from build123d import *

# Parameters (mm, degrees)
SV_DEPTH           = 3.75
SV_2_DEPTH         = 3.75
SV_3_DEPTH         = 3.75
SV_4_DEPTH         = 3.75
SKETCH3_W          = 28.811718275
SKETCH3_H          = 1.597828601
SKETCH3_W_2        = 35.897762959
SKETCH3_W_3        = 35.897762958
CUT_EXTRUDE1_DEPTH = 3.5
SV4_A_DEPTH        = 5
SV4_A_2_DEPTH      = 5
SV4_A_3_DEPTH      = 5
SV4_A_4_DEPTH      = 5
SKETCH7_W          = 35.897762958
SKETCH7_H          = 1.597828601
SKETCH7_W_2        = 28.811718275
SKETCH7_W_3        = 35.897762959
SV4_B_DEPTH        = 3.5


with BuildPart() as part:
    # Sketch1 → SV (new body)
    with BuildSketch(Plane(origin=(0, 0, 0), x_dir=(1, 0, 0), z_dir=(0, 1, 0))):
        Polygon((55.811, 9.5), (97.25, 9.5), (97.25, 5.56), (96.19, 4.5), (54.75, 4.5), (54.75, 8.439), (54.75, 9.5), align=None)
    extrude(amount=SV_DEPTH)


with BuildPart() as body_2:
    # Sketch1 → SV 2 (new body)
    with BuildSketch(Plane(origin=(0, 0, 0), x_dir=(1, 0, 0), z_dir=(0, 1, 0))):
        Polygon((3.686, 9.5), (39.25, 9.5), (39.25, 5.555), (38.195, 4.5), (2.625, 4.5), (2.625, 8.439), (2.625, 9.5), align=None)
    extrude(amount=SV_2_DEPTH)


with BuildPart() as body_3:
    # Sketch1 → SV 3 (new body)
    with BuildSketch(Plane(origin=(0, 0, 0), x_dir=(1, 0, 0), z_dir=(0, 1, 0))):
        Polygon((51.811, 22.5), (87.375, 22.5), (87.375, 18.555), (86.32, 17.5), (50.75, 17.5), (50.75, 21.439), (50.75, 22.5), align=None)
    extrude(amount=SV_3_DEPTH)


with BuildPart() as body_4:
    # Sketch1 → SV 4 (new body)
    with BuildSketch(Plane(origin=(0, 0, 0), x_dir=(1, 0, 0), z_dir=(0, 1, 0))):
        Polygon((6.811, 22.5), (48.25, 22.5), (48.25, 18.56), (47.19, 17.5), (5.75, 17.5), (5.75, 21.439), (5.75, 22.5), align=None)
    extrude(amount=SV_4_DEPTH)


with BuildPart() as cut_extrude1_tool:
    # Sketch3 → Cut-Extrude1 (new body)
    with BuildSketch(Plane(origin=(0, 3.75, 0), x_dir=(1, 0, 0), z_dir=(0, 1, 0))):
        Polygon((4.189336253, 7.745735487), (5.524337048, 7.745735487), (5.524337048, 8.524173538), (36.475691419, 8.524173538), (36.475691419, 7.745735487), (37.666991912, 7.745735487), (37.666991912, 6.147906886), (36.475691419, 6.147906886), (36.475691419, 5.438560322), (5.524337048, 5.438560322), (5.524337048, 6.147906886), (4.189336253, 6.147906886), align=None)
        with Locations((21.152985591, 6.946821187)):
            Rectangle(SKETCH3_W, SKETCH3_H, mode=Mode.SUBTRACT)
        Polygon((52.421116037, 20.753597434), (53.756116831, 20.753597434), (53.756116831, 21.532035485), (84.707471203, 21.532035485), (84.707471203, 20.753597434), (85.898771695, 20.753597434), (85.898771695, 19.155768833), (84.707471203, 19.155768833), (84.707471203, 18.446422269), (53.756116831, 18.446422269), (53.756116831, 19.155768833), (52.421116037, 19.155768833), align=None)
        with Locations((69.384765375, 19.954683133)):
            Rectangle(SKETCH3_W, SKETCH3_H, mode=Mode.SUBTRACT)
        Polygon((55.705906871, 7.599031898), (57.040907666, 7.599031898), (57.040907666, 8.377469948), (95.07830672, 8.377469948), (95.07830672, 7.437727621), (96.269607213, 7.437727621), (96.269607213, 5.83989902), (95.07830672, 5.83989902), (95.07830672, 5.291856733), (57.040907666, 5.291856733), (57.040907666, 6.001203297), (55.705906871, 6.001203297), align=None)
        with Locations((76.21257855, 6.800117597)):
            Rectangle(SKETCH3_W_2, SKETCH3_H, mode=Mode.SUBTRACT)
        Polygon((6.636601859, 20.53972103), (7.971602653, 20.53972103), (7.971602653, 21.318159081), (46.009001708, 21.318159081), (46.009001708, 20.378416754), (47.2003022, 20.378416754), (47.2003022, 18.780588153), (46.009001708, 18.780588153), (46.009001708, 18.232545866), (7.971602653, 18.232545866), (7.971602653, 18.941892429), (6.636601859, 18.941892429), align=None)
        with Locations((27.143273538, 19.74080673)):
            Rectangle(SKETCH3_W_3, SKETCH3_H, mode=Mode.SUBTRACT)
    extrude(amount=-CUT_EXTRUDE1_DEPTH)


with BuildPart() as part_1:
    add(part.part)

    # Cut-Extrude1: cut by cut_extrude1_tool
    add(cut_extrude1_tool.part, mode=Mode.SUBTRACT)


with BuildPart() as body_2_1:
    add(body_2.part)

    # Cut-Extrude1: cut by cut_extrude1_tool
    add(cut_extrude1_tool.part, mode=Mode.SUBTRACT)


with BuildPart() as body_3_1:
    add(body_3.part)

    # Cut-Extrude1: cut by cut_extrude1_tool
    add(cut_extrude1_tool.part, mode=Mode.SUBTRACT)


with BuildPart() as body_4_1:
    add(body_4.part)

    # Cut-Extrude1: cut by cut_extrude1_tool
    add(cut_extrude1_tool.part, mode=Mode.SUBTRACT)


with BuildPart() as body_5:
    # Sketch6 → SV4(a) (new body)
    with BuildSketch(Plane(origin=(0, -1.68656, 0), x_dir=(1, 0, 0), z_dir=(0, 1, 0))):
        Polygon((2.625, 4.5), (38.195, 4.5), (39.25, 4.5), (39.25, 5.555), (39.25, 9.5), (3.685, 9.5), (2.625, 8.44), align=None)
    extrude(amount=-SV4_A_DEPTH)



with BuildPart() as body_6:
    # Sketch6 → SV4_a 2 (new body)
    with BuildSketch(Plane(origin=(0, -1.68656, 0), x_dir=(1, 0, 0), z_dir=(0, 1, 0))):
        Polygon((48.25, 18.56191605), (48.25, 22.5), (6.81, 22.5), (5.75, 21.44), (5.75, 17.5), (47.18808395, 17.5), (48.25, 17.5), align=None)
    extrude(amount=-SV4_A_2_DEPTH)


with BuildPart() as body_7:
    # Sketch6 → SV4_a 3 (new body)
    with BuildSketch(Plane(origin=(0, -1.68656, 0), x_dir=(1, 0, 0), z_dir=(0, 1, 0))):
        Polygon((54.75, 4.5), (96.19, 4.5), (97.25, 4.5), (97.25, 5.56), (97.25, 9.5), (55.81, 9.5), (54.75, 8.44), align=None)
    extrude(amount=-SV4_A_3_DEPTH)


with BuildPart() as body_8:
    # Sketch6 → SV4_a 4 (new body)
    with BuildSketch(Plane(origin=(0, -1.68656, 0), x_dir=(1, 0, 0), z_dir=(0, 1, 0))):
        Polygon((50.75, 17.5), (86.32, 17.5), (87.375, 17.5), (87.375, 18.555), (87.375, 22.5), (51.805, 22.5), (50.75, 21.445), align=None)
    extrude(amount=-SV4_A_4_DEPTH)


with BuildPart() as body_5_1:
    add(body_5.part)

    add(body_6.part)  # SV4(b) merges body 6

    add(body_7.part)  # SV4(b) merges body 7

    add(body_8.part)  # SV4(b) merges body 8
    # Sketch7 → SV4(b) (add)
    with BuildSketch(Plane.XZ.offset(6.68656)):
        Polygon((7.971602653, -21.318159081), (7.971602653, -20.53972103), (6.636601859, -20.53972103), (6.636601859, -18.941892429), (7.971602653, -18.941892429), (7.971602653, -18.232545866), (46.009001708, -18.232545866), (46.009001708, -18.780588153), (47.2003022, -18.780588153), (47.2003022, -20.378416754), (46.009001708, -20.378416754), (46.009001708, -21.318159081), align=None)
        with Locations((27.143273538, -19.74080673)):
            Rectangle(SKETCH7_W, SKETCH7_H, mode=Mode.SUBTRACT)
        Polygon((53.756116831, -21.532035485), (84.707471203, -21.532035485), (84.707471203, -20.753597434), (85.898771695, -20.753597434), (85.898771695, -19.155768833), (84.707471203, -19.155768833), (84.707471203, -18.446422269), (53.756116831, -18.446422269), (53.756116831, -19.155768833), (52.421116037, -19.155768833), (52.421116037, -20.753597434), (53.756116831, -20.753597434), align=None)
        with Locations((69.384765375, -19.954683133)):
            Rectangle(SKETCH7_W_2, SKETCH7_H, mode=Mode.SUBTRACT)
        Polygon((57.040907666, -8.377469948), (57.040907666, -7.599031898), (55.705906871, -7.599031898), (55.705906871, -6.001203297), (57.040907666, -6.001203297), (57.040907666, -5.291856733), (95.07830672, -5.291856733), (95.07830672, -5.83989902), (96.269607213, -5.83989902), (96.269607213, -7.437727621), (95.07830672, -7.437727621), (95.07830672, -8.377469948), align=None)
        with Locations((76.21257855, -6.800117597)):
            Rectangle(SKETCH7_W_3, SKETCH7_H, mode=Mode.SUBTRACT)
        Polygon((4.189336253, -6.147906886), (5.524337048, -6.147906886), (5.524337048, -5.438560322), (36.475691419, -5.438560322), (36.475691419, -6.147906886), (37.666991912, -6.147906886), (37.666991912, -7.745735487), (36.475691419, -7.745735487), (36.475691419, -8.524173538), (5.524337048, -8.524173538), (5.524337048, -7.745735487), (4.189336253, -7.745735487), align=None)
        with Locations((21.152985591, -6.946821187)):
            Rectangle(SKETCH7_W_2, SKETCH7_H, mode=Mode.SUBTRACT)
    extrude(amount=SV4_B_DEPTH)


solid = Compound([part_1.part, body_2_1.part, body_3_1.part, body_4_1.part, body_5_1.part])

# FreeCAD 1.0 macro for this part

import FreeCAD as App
import Part
import Sketcher

V = App.Vector
Q = App.Units.Quantity

doc = App.newDocument("Part")
body = doc.addObject("PartDesign::Body", "Body")

sketch1 = body.newObject("Sketcher::SketchObject", "Sketch")
sketch1.AttachmentSupport = (doc.getObject("XZ_Plane"), [""])
sketch1.MapMode = "FlatFace"
sketch1.addGeometry([
    Part.LineSegment(V(97.25, -9.5, 0), V(54.75, -9.5, 0)),
    Part.LineSegment(V(54.75, -9.5, 0), V(54.75, -4.5, 0)),
    Part.LineSegment(V(54.75, -4.5, 0), V(96.19, -4.5, 0)),
    Part.LineSegment(V(96.19, -4.5, 0), V(97.25, -5.56, 0)),
    Part.LineSegment(V(97.25, -5.56, 0), V(97.25, -9.5, 0)),
], False)
sketch1.addConstraint([
    Sketcher.Constraint("Coincident", 0, 2, 1, 1),
    Sketcher.Constraint("Coincident", 1, 2, 2, 1),
    Sketcher.Constraint("Coincident", 2, 2, 3, 1),
    Sketcher.Constraint("Coincident", 3, 2, 4, 1),
    Sketcher.Constraint("Coincident", 4, 2, 0, 1),
    Sketcher.Constraint("Horizontal", 0),
    Sketcher.Constraint("Vertical", 1),
    Sketcher.Constraint("Horizontal", 2),
    Sketcher.Constraint("Vertical", 4),
    Sketcher.Constraint("DistanceY", 1, 1, 1, 2, Q("5 mm")),
    Sketcher.Constraint("Angle", 3, Q("-45 deg")),
    Sketcher.Constraint("DistanceX", 0, 2, 0, 1, Q("42.5 mm")),
    Sketcher.Constraint("DistanceX", 2, 1, 2, 2, Q("41.44 mm")),
    Sketcher.Constraint("DistanceY", 0, 2, -1, 1, Q("9.5 mm")),
    Sketcher.Constraint("DistanceX", -1, 1, 0, 2, Q("54.75 mm")),
])
pad1 = body.newObject("PartDesign::Pad", "Pad")
pad1.Profile = sketch1
pad1.Length = 3.75
pad1.Reversed = True
body2 = doc.addObject("PartDesign::Body", "Body001")

sketch2 = body2.newObject("Sketcher::SketchObject", "Sketch001")
sketch2.AttachmentSupport = (doc.getObject("XZ_Plane001"), [""])
sketch2.MapMode = "FlatFace"
sketch2.addGeometry([
    Part.LineSegment(V(39.25, -9.5, 0), V(2.625, -9.5, 0)),
    Part.LineSegment(V(2.625, -9.5, 0), V(2.625, -4.5, 0)),
    Part.LineSegment(V(2.625, -4.5, 0), V(38.195, -4.5, 0)),
    Part.LineSegment(V(38.195, -4.5, 0), V(39.25, -5.555, 0)),
    Part.LineSegment(V(39.25, -5.555, 0), V(39.25, -9.5, 0)),
], False)
sketch2.addConstraint([
    Sketcher.Constraint("Coincident", 0, 2, 1, 1),
    Sketcher.Constraint("Coincident", 1, 2, 2, 1),
    Sketcher.Constraint("Coincident", 2, 2, 3, 1),
    Sketcher.Constraint("Coincident", 3, 2, 4, 1),
    Sketcher.Constraint("Coincident", 4, 2, 0, 1),
    Sketcher.Constraint("Horizontal", 0),
    Sketcher.Constraint("Vertical", 1),
    Sketcher.Constraint("Horizontal", 2),
    Sketcher.Constraint("Vertical", 4),
    Sketcher.Constraint("DistanceY", 1, 1, 1, 2, Q("5 mm")),
    Sketcher.Constraint("Angle", 3, Q("-45 deg")),
    Sketcher.Constraint("DistanceX", 2, 1, 2, 2, Q("35.57 mm")),
    Sketcher.Constraint("DistanceY", 0, 2, -1, 1, Q("9.5 mm")),
    Sketcher.Constraint("DistanceX", 0, 2, 0, 1, Q("36.625 mm")),
    Sketcher.Constraint("DistanceX", -1, 1, 3, 2, Q("39.25 mm")),
])
pad2 = body2.newObject("PartDesign::Pad", "Pad001")
pad2.Profile = sketch2
pad2.Length = 3.75
pad2.Reversed = True
body3 = doc.addObject("PartDesign::Body", "Body002")

sketch3 = body3.newObject("Sketcher::SketchObject", "Sketch002")
sketch3.AttachmentSupport = (doc.getObject("XZ_Plane002"), [""])
sketch3.MapMode = "FlatFace"
sketch3.addGeometry([
    Part.LineSegment(V(87.375, -22.5, 0), V(50.75, -22.5, 0)),
    Part.LineSegment(V(50.75, -22.5, 0), V(50.75, -17.5, 0)),
    Part.LineSegment(V(50.75, -17.5, 0), V(86.32, -17.5, 0)),
    Part.LineSegment(V(86.32, -17.5, 0), V(87.375, -18.555, 0)),
    Part.LineSegment(V(87.375, -18.555, 0), V(87.375, -22.5, 0)),
], False)
sketch3.addConstraint([
    Sketcher.Constraint("Coincident", 0, 2, 1, 1),
    Sketcher.Constraint("Coincident", 1, 2, 2, 1),
    Sketcher.Constraint("Coincident", 2, 2, 3, 1),
    Sketcher.Constraint("Coincident", 3, 2, 4, 1),
    Sketcher.Constraint("Coincident", 4, 2, 0, 1),
    Sketcher.Constraint("Horizontal", 0),
    Sketcher.Constraint("Vertical", 1),
    Sketcher.Constraint("Horizontal", 2),
    Sketcher.Constraint("Vertical", 4),
    Sketcher.Constraint("DistanceY", 1, 1, 1, 2, Q("5 mm")),
    Sketcher.Constraint("Angle", 3, Q("-45 deg")),
    Sketcher.Constraint("DistanceX", 2, 1, 2, 2, Q("35.57 mm")),
    Sketcher.Constraint("DistanceY", 0, 2, -1, 1, Q("22.5 mm")),
    Sketcher.Constraint("DistanceX", 0, 2, 0, 1, Q("36.625 mm")),
    Sketcher.Constraint("DistanceX", -1, 1, 0, 2, Q("50.75 mm")),
])
pad3 = body3.newObject("PartDesign::Pad", "Pad002")
pad3.Profile = sketch3
pad3.Length = 3.75
pad3.Reversed = True
body4 = doc.addObject("PartDesign::Body", "Body003")

sketch4 = body4.newObject("Sketcher::SketchObject", "Sketch003")
sketch4.AttachmentSupport = (doc.getObject("XZ_Plane003"), [""])
sketch4.MapMode = "FlatFace"
sketch4.addGeometry([
    Part.LineSegment(V(48.25, -22.5, 0), V(5.75, -22.5, 0)),
    Part.LineSegment(V(5.75, -22.5, 0), V(5.75, -17.5, 0)),
    Part.LineSegment(V(5.75, -17.5, 0), V(47.19, -17.5, 0)),
    Part.LineSegment(V(47.19, -17.5, 0), V(48.25, -18.56, 0)),
    Part.LineSegment(V(48.25, -18.56, 0), V(48.25, -22.5, 0)),
], False)
sketch4.addConstraint([
    Sketcher.Constraint("Coincident", 0, 2, 1, 1),
    Sketcher.Constraint("Coincident", 1, 2, 2, 1),
    Sketcher.Constraint("Coincident", 2, 2, 3, 1),
    Sketcher.Constraint("Coincident", 3, 2, 4, 1),
    Sketcher.Constraint("Coincident", 4, 2, 0, 1),
    Sketcher.Constraint("Horizontal", 0),
    Sketcher.Constraint("Vertical", 1),
    Sketcher.Constraint("Horizontal", 2),
    Sketcher.Constraint("Vertical", 4),
    Sketcher.Constraint("DistanceY", 1, 1, 1, 2, Q("5 mm")),
    Sketcher.Constraint("Angle", 3, Q("-45 deg")),
    Sketcher.Constraint("DistanceX", 0, 2, 0, 1, Q("42.5 mm")),
    Sketcher.Constraint("DistanceX", 2, 1, 2, 2, Q("41.44 mm")),
    Sketcher.Constraint("DistanceY", 0, 2, -1, 1, Q("22.5 mm")),
    Sketcher.Constraint("DistanceX", -1, 1, 0, 2, Q("5.75 mm")),
])
pad4 = body4.newObject("PartDesign::Pad", "Pad003")
pad4.Profile = sketch4
pad4.Length = 3.75
pad4.Reversed = True
body5 = doc.addObject("PartDesign::Body", "Body004")
body5.AllowCompound = True

sketch5 = body5.newObject("Sketcher::SketchObject", "Sketch004")
sketch5.AttachmentSupport = (doc.getObject("XZ_Plane004"), [""])
sketch5.MapMode = "FlatFace"
sketch5.AttachmentOffset = App.Placement(V(0, 0, -3.75), App.Rotation())
sketch5.addGeometry([
    Part.LineSegment(V(5.524337, -7.745735, 0), V(4.189336, -7.745735, 0)),
    Part.LineSegment(V(4.189336, -7.745735, 0), V(4.189336, -6.147907, 0)),
    Part.LineSegment(V(4.189336, -6.147907, 0), V(5.524337, -6.147907, 0)),
    Part.LineSegment(V(5.524337, -6.147907, 0), V(5.524337, -5.43856, 0)),
    Part.LineSegment(V(5.524337, -5.43856, 0), V(36.475691, -5.43856, 0)),
    Part.LineSegment(V(36.475691, -5.43856, 0), V(36.475691, -6.147907, 0)),
    Part.LineSegment(V(36.475691, -6.147907, 0), V(37.666992, -6.147907, 0)),
    Part.LineSegment(V(37.666992, -6.147907, 0), V(37.666992, -7.745735, 0)),
    Part.LineSegment(V(37.666992, -7.745735, 0), V(36.475691, -7.745735, 0)),
    Part.LineSegment(V(36.475691, -7.745735, 0), V(36.475691, -8.524174, 0)),
    Part.LineSegment(V(36.475691, -8.524174, 0), V(5.524337, -8.524174, 0)),
    Part.LineSegment(V(5.524337, -8.524174, 0), V(5.524337, -7.745735, 0)),
    Part.LineSegment(V(6.747126, -6.147907, 0), V(6.747126, -7.745735, 0)),
    Part.LineSegment(V(6.747126, -7.745735, 0), V(35.558845, -7.745735, 0)),
    Part.LineSegment(V(35.558845, -7.745735, 0), V(35.558845, -6.147907, 0)),
    Part.LineSegment(V(35.558845, -6.147907, 0), V(6.747126, -6.147907, 0)),
    Part.LineSegment(V(53.756117, -20.753597, 0), V(52.421116, -20.753597, 0)),
    Part.LineSegment(V(52.421116, -20.753597, 0), V(52.421116, -19.155769, 0)),
    Part.LineSegment(V(52.421116, -19.155769, 0), V(53.756117, -19.155769, 0)),
    Part.LineSegment(V(53.756117, -19.155769, 0), V(53.756117, -18.446422, 0)),
    Part.LineSegment(V(53.756117, -18.446422, 0), V(84.707471, -18.446422, 0)),
    Part.LineSegment(V(84.707471, -18.446422, 0), V(84.707471, -19.155769, 0)),
    Part.LineSegment(V(84.707471, -19.155769, 0), V(85.898772, -19.155769, 0)),
    Part.LineSegment(V(85.898772, -19.155769, 0), V(85.898772, -20.753597, 0)),
    Part.LineSegment(V(85.898772, -20.753597, 0), V(84.707471, -20.753597, 0)),
    Part.LineSegment(V(84.707471, -20.753597, 0), V(84.707471, -21.532035, 0)),
    Part.LineSegment(V(84.707471, -21.532035, 0), V(53.756117, -21.532035, 0)),
    Part.LineSegment(V(53.756117, -21.532035, 0), V(53.756117, -20.753597, 0)),
    Part.LineSegment(V(54.978906, -19.155769, 0), V(54.978906, -20.753597, 0)),
    Part.LineSegment(V(54.978906, -20.753597, 0), V(83.790625, -20.753597, 0)),
    Part.LineSegment(V(83.790625, -20.753597, 0), V(83.790625, -19.155769, 0)),
    Part.LineSegment(V(83.790625, -19.155769, 0), V(54.978906, -19.155769, 0)),
    Part.LineSegment(V(57.040908, -7.599032, 0), V(55.705907, -7.599032, 0)),
    Part.LineSegment(V(55.705907, -7.599032, 0), V(55.705907, -6.001203, 0)),
    Part.LineSegment(V(55.705907, -6.001203, 0), V(57.040908, -6.001203, 0)),
    Part.LineSegment(V(57.040908, -6.001203, 0), V(57.040908, -5.291857, 0)),
    Part.LineSegment(V(57.040908, -5.291857, 0), V(95.078307, -5.291857, 0)),
    Part.LineSegment(V(95.078307, -5.291857, 0), V(95.078307, -5.839899, 0)),
    Part.LineSegment(V(95.078307, -5.839899, 0), V(96.269607, -5.839899, 0)),
    Part.LineSegment(V(96.269607, -5.839899, 0), V(96.269607, -7.437728, 0)),
    Part.LineSegment(V(96.269607, -7.437728, 0), V(95.078307, -7.437728, 0)),
    Part.LineSegment(V(95.078307, -7.437728, 0), V(95.078307, -8.37747, 0)),
    Part.LineSegment(V(95.078307, -8.37747, 0), V(57.040908, -8.37747, 0)),
    Part.LineSegment(V(57.040908, -8.37747, 0), V(57.040908, -7.599032, 0)),
    Part.LineSegment(V(58.263697, -6.001203, 0), V(58.263697, -7.599032, 0)),
    Part.LineSegment(V(58.263697, -7.599032, 0), V(94.16146, -7.599032, 0)),
    Part.LineSegment(V(94.16146, -7.599032, 0), V(94.16146, -6.001203, 0)),
    Part.LineSegment(V(94.16146, -6.001203, 0), V(58.263697, -6.001203, 0)),
    Part.LineSegment(V(7.971603, -20.539721, 0), V(6.636602, -20.539721, 0)),
    Part.LineSegment(V(6.636602, -20.539721, 0), V(6.636602, -18.941892, 0)),
    Part.LineSegment(V(6.636602, -18.941892, 0), V(7.971603, -18.941892, 0)),
    Part.LineSegment(V(7.971603, -18.941892, 0), V(7.971603, -18.232546, 0)),
    Part.LineSegment(V(7.971603, -18.232546, 0), V(46.009002, -18.232546, 0)),
    Part.LineSegment(V(46.009002, -18.232546, 0), V(46.009002, -18.780588, 0)),
    Part.LineSegment(V(46.009002, -18.780588, 0), V(47.200302, -18.780588, 0)),
    Part.LineSegment(V(47.200302, -18.780588, 0), V(47.200302, -20.378417, 0)),
    Part.LineSegment(V(47.200302, -20.378417, 0), V(46.009002, -20.378417, 0)),
    Part.LineSegment(V(46.009002, -20.378417, 0), V(46.009002, -21.318159, 0)),
    Part.LineSegment(V(46.009002, -21.318159, 0), V(7.971603, -21.318159, 0)),
    Part.LineSegment(V(7.971603, -21.318159, 0), V(7.971603, -20.539721, 0)),
    Part.LineSegment(V(9.194392, -18.941892, 0), V(9.194392, -20.539721, 0)),
    Part.LineSegment(V(9.194392, -20.539721, 0), V(45.092155, -20.539721, 0)),
    Part.LineSegment(V(45.092155, -20.539721, 0), V(45.092155, -18.941892, 0)),
    Part.LineSegment(V(45.092155, -18.941892, 0), V(9.194392, -18.941892, 0)),
], False)
sketch5.addConstraint([
    Sketcher.Constraint("Coincident", 0, 2, 1, 1),
    Sketcher.Constraint("Coincident", 1, 2, 2, 1),
    Sketcher.Constraint("Coincident", 2, 2, 3, 1),
    Sketcher.Constraint("Coincident", 3, 2, 4, 1),
    Sketcher.Constraint("Coincident", 4, 2, 5, 1),
    Sketcher.Constraint("Coincident", 5, 2, 6, 1),
    Sketcher.Constraint("Coincident", 6, 2, 7, 1),
    Sketcher.Constraint("Coincident", 7, 2, 8, 1),
    Sketcher.Constraint("Coincident", 8, 2, 9, 1),
    Sketcher.Constraint("Coincident", 9, 2, 10, 1),
    Sketcher.Constraint("Coincident", 10, 2, 11, 1),
    Sketcher.Constraint("Coincident", 11, 2, 0, 1),
    Sketcher.Constraint("Coincident", 12, 2, 13, 1),
    Sketcher.Constraint("Coincident", 13, 2, 14, 1),
    Sketcher.Constraint("Coincident", 14, 2, 15, 1),
    Sketcher.Constraint("Coincident", 15, 2, 12, 1),
    Sketcher.Constraint("Coincident", 16, 2, 17, 1),
    Sketcher.Constraint("Coincident", 17, 2, 18, 1),
    Sketcher.Constraint("Coincident", 18, 2, 19, 1),
    Sketcher.Constraint("Coincident", 19, 2, 20, 1),
    Sketcher.Constraint("Coincident", 20, 2, 21, 1),
    Sketcher.Constraint("Coincident", 21, 2, 22, 1),
    Sketcher.Constraint("Coincident", 22, 2, 23, 1),
    Sketcher.Constraint("Coincident", 23, 2, 24, 1),
    Sketcher.Constraint("Coincident", 24, 2, 25, 1),
    Sketcher.Constraint("Coincident", 25, 2, 26, 1),
    Sketcher.Constraint("Coincident", 26, 2, 27, 1),
    Sketcher.Constraint("Coincident", 27, 2, 16, 1),
    Sketcher.Constraint("Coincident", 28, 2, 29, 1),
    Sketcher.Constraint("Coincident", 29, 2, 30, 1),
    Sketcher.Constraint("Coincident", 30, 2, 31, 1),
    Sketcher.Constraint("Coincident", 31, 2, 28, 1),
    Sketcher.Constraint("Coincident", 32, 2, 33, 1),
    Sketcher.Constraint("Coincident", 33, 2, 34, 1),
    Sketcher.Constraint("Coincident", 34, 2, 35, 1),
    Sketcher.Constraint("Coincident", 35, 2, 36, 1),
    Sketcher.Constraint("Coincident", 36, 2, 37, 1),
    Sketcher.Constraint("Coincident", 37, 2, 38, 1),
    Sketcher.Constraint("Coincident", 38, 2, 39, 1),
    Sketcher.Constraint("Coincident", 39, 2, 40, 1),
    Sketcher.Constraint("Coincident", 40, 2, 41, 1),
    Sketcher.Constraint("Coincident", 41, 2, 42, 1),
    Sketcher.Constraint("Coincident", 42, 2, 43, 1),
    Sketcher.Constraint("Coincident", 43, 2, 32, 1),
    Sketcher.Constraint("Coincident", 44, 2, 45, 1),
    Sketcher.Constraint("Coincident", 45, 2, 46, 1),
    Sketcher.Constraint("Coincident", 46, 2, 47, 1),
    Sketcher.Constraint("Coincident", 47, 2, 44, 1),
    Sketcher.Constraint("Coincident", 48, 2, 49, 1),
    Sketcher.Constraint("Coincident", 49, 2, 50, 1),
    Sketcher.Constraint("Coincident", 50, 2, 51, 1),
    Sketcher.Constraint("Coincident", 51, 2, 52, 1),
    Sketcher.Constraint("Coincident", 52, 2, 53, 1),
    Sketcher.Constraint("Coincident", 53, 2, 54, 1),
    Sketcher.Constraint("Coincident", 54, 2, 55, 1),
    Sketcher.Constraint("Coincident", 55, 2, 56, 1),
    Sketcher.Constraint("Coincident", 56, 2, 57, 1),
    Sketcher.Constraint("Coincident", 57, 2, 58, 1),
    Sketcher.Constraint("Coincident", 58, 2, 59, 1),
    Sketcher.Constraint("Coincident", 59, 2, 48, 1),
    Sketcher.Constraint("Coincident", 60, 2, 61, 1),
    Sketcher.Constraint("Coincident", 61, 2, 62, 1),
    Sketcher.Constraint("Coincident", 62, 2, 63, 1),
    Sketcher.Constraint("Coincident", 63, 2, 60, 1),
    Sketcher.Constraint("Horizontal", 0),
    Sketcher.Constraint("Vertical", 1),
    Sketcher.Constraint("Horizontal", 2),
    Sketcher.Constraint("Vertical", 3),
    Sketcher.Constraint("Horizontal", 4),
    Sketcher.Constraint("Vertical", 5),
    Sketcher.Constraint("Horizontal", 6),
    Sketcher.Constraint("Vertical", 7),
    Sketcher.Constraint("Horizontal", 8),
    Sketcher.Constraint("Vertical", 9),
    Sketcher.Constraint("Horizontal", 10),
    Sketcher.Constraint("Vertical", 11),
    Sketcher.Constraint("Vertical", 12),
    Sketcher.Constraint("Horizontal", 13),
    Sketcher.Constraint("Vertical", 14),
    Sketcher.Constraint("Horizontal", 15),
    Sketcher.Constraint("Horizontal", 16),
    Sketcher.Constraint("Vertical", 17),
    Sketcher.Constraint("Horizontal", 18),
    Sketcher.Constraint("Vertical", 19),
    Sketcher.Constraint("Horizontal", 20),
    Sketcher.Constraint("Vertical", 21),
    Sketcher.Constraint("Horizontal", 22),
    Sketcher.Constraint("Vertical", 23),
    Sketcher.Constraint("Horizontal", 24),
    Sketcher.Constraint("Vertical", 25),
    Sketcher.Constraint("Horizontal", 26),
    Sketcher.Constraint("Vertical", 27),
    Sketcher.Constraint("Vertical", 28),
    Sketcher.Constraint("Horizontal", 29),
    Sketcher.Constraint("Vertical", 30),
    Sketcher.Constraint("Horizontal", 31),
    Sketcher.Constraint("Horizontal", 32),
    Sketcher.Constraint("Vertical", 33),
    Sketcher.Constraint("Horizontal", 34),
    Sketcher.Constraint("Vertical", 35),
    Sketcher.Constraint("Horizontal", 36),
    Sketcher.Constraint("Vertical", 37),
    Sketcher.Constraint("Horizontal", 38),
    Sketcher.Constraint("Vertical", 39),
    Sketcher.Constraint("Horizontal", 40),
    Sketcher.Constraint("Vertical", 41),
    Sketcher.Constraint("Horizontal", 42),
    Sketcher.Constraint("Vertical", 43),
    Sketcher.Constraint("Vertical", 44),
    Sketcher.Constraint("Horizontal", 45),
    Sketcher.Constraint("Vertical", 46),
    Sketcher.Constraint("Horizontal", 47),
    Sketcher.Constraint("Horizontal", 48),
    Sketcher.Constraint("Vertical", 49),
    Sketcher.Constraint("Horizontal", 50),
    Sketcher.Constraint("Vertical", 51),
    Sketcher.Constraint("Horizontal", 52),
    Sketcher.Constraint("Vertical", 53),
    Sketcher.Constraint("Horizontal", 54),
    Sketcher.Constraint("Vertical", 55),
    Sketcher.Constraint("Horizontal", 56),
    Sketcher.Constraint("Vertical", 57),
    Sketcher.Constraint("Horizontal", 58),
    Sketcher.Constraint("Vertical", 59),
    Sketcher.Constraint("Vertical", 60),
    Sketcher.Constraint("Horizontal", 61),
    Sketcher.Constraint("Vertical", 62),
    Sketcher.Constraint("Horizontal", 63),
    Sketcher.Constraint("Horizontal", 2, 2, 5, 2),
    Sketcher.Constraint("Horizontal", 0, 2, 7, 2),
    Sketcher.Constraint("Horizontal", 11, 2, 12, 2),
    Sketcher.Constraint("Horizontal", 6, 2, 14, 2),
    Sketcher.Constraint("Horizontal", 18, 2, 21, 2),
    Sketcher.Constraint("Horizontal", 16, 2, 23, 2),
    Sketcher.Constraint("Horizontal", 27, 2, 28, 2),
    Sketcher.Constraint("Horizontal", 22, 2, 30, 2),
    Sketcher.Constraint("Horizontal", 43, 2, 44, 2),
    Sketcher.Constraint("Horizontal", 34, 2, 46, 2),
    Sketcher.Constraint("Horizontal", 59, 2, 60, 2),
    Sketcher.Constraint("Horizontal", 50, 2, 62, 2),
    Sketcher.Constraint("Vertical", 5, 2, 8, 2),
    Sketcher.Constraint("Vertical", 3, 2, 10, 2),
    Sketcher.Constraint("Vertical", 21, 2, 24, 2),
    Sketcher.Constraint("Vertical", 19, 2, 26, 2),
    Sketcher.Constraint("Vertical", 37, 2, 40, 2),
    Sketcher.Constraint("Vertical", 35, 2, 42, 2),
    Sketcher.Constraint("Vertical", 53, 2, 56, 2),
    Sketcher.Constraint("Vertical", 51, 2, 58, 2),
    Sketcher.Constraint("Equal", 2, 16),
    Sketcher.Constraint("Equal", 10, 20),
    Sketcher.Constraint("Equal", 8, 22),
    Sketcher.Constraint("Equal", 15, 29),
    Sketcher.Constraint("Equal", 18, 32),
    Sketcher.Constraint("Equal", 24, 38),
    Sketcher.Constraint("Equal", 34, 48),
    Sketcher.Constraint("Equal", 42, 52),
    Sketcher.Constraint("Equal", 40, 54),
    Sketcher.Constraint("Equal", 47, 61),
    Sketcher.Constraint("Equal", 14, 17),
    Sketcher.Constraint("Equal", 5, 19),
    Sketcher.Constraint("Equal", 11, 25),
    Sketcher.Constraint("Equal", 30, 33),
    Sketcher.Constraint("Equal", 21, 35),
    Sketcher.Constraint("Equal", 33, 39),
    Sketcher.Constraint("Equal", 27, 43),
    Sketcher.Constraint("Equal", 46, 49),
    Sketcher.Constraint("Equal", 35, 51),
    Sketcher.Constraint("Equal", 37, 53),
    Sketcher.Constraint("Equal", 49, 55),
    Sketcher.Constraint("Equal", 41, 57),
    Sketcher.Constraint("DistanceX", 0, 2, 0, 1, Q("1.335001 mm")),
    Sketcher.Constraint("DistanceX", 6, 1, 6, 2, Q("1.1913 mm")),
    Sketcher.Constraint("DistanceX", 36, 1, 36, 2, Q("38.037399 mm")),
    Sketcher.Constraint("DistanceX", -1, 1, 52, 2, Q("46.009002 mm")),
    Sketcher.Constraint("DistanceX", 13, 1, 13, 2, Q("28.811718 mm")),
    Sketcher.Constraint("DistanceY", 1, 1, 1, 2, Q("1.597829 mm")),
    Sketcher.Constraint("DistanceY", 9, 2, 9, 1, Q("0.778438 mm")),
    Sketcher.Constraint("DistanceY", 37, 2, -1, 1, Q("5.839899 mm")),
    Sketcher.Constraint("DistanceX", 4, 1, 4, 2, Q("30.951354 mm")),
    Sketcher.Constraint("DistanceX", 45, 1, 45, 2, Q("35.897763 mm")),
    Sketcher.Constraint("DistanceY", 3, 1, 3, 2, Q("0.709347 mm")),
    Sketcher.Constraint("DistanceY", 37, 2, 37, 1, Q("0.548042 mm")),
    Sketcher.Constraint("DistanceY", 3, 2, -1, 1, Q("5.43856 mm")),
    Sketcher.Constraint("DistanceX", -1, 1, 4, 2, Q("36.475691 mm")),
    Sketcher.Constraint("DistanceY", 17, 2, -1, 1, Q("19.155769 mm")),
    Sketcher.Constraint("DistanceX", -1, 1, 20, 2, Q("84.707471 mm")),
    Sketcher.Constraint("DistanceX", -1, 1, 45, 2, Q("94.16146 mm")),
    Sketcher.Constraint("DistanceY", 48, 2, -1, 1, Q("20.539721 mm")),
    Sketcher.Constraint("DistanceX", -1, 1, 12, 2, Q("6.747126 mm")),
    Sketcher.Constraint("DistanceX", -1, 1, 28, 2, Q("54.978906 mm")),
    Sketcher.Constraint("DistanceX", -1, 1, 32, 2, Q("55.705907 mm")),
    Sketcher.Constraint("DistanceX", -1, 1, 60, 2, Q("9.194392 mm")),
])
pad5 = body5.newObject("PartDesign::Pad", "Pad004")
pad5.Profile = sketch5
pad5.Length = 3.5
doc.recompute()

body6 = doc.addObject("PartDesign::Body", "Body005")
body6.BaseFeature = body5
boolean = body.newObject("PartDesign::Boolean", "Boolean")
boolean.Type = "Cut"
boolean.addObjects([body6])
doc.recompute()

body7 = doc.addObject("PartDesign::Body", "Body006")
body7.BaseFeature = body5
boolean2 = body2.newObject("PartDesign::Boolean", "Boolean001")
boolean2.Type = "Cut"
boolean2.addObjects([body7])
doc.recompute()

body8 = doc.addObject("PartDesign::Body", "Body007")
body8.BaseFeature = body5
boolean3 = body3.newObject("PartDesign::Boolean", "Boolean002")
boolean3.Type = "Cut"
boolean3.addObjects([body8])
doc.recompute()

boolean4 = body4.newObject("PartDesign::Boolean", "Boolean003")
boolean4.Type = "Cut"
boolean4.addObjects([body5])
body9 = doc.addObject("PartDesign::Body", "Body008")

sketch6 = body9.newObject("Sketcher::SketchObject", "Sketch005")
sketch6.AttachmentSupport = (doc.getObject("XZ_Plane008"), [""])
sketch6.MapMode = "FlatFace"
sketch6.AttachmentOffset = App.Placement(V(0, 0, 1.68656), App.Rotation())
sketch6.addGeometry([
    Part.LineSegment(V(2.625, -4.5, 0), V(39.25, -4.5, 0)),
    Part.LineSegment(V(39.25, -4.5, 0), V(39.25, -9.5, 0)),
    Part.LineSegment(V(39.25, -9.5, 0), V(3.685, -9.5, 0)),
    Part.LineSegment(V(3.685, -9.5, 0), V(2.625, -8.44, 0)),
    Part.LineSegment(V(2.625, -8.44, 0), V(2.625, -4.5, 0)),
], False)
sketch6.addConstraint([
    Sketcher.Constraint("Coincident", 0, 2, 1, 1),
    Sketcher.Constraint("Coincident", 1, 2, 2, 1),
    Sketcher.Constraint("Coincident", 2, 2, 3, 1),
    Sketcher.Constraint("Coincident", 3, 2, 4, 1),
    Sketcher.Constraint("Coincident", 4, 2, 0, 1),
    Sketcher.Constraint("Horizontal", 0),
    Sketcher.Constraint("Vertical", 1),
    Sketcher.Constraint("Horizontal", 2),
    Sketcher.Constraint("Vertical", 4),
    Sketcher.Constraint("DistanceY", 1, 2, 1, 1, Q("5 mm")),
    Sketcher.Constraint("Angle", 3, Q("135 deg")),
    Sketcher.Constraint("DistanceY", 4, 1, 4, 2, Q("3.94 mm")),
    Sketcher.Constraint("DistanceY", 0, 2, -1, 1, Q("4.5 mm")),
    Sketcher.Constraint("DistanceX", 0, 1, 0, 2, Q("36.625 mm")),
    Sketcher.Constraint("DistanceX", -1, 1, 0, 2, Q("39.25 mm")),
])
pad6 = body9.newObject("PartDesign::Pad", "Pad005")
pad6.Profile = sketch6
pad6.Length = 5
body10 = doc.addObject("PartDesign::Body", "Body009")

sketch7 = body10.newObject("Sketcher::SketchObject", "Sketch006")
sketch7.AttachmentSupport = (doc.getObject("XZ_Plane009"), [""])
sketch7.MapMode = "FlatFace"
sketch7.AttachmentOffset = App.Placement(V(0, 0, 1.68656), App.Rotation())
sketch7.addGeometry([
    Part.LineSegment(V(48.25, -22.5, 0), V(6.81, -22.5, 0)),
    Part.LineSegment(V(6.81, -22.5, 0), V(5.75, -21.44, 0)),
    Part.LineSegment(V(5.75, -21.44, 0), V(5.75, -17.5, 0)),
    Part.LineSegment(V(5.75, -17.5, 0), V(48.25, -17.5, 0)),
    Part.LineSegment(V(48.25, -17.5, 0), V(48.25, -22.5, 0)),
], False)
sketch7.addConstraint([
    Sketcher.Constraint("Coincident", 0, 2, 1, 1),
    Sketcher.Constraint("Coincident", 1, 2, 2, 1),
    Sketcher.Constraint("Coincident", 2, 2, 3, 1),
    Sketcher.Constraint("Coincident", 3, 2, 4, 1),
    Sketcher.Constraint("Coincident", 4, 2, 0, 1),
    Sketcher.Constraint("Horizontal", 0),
    Sketcher.Constraint("Vertical", 2),
    Sketcher.Constraint("Horizontal", 3),
    Sketcher.Constraint("Vertical", 4),
    Sketcher.Constraint("DistanceY", 4, 2, 4, 1, Q("5 mm")),
    Sketcher.Constraint("Angle", 1, Q("135 deg")),
    Sketcher.Constraint("DistanceX", 3, 1, 3, 2, Q("42.5 mm")),
    Sketcher.Constraint("DistanceX", 0, 2, 0, 1, Q("41.44 mm")),
    Sketcher.Constraint("DistanceY", 0, 2, -1, 1, Q("22.5 mm")),
    Sketcher.Constraint("DistanceX", -1, 1, 0, 2, Q("6.81 mm")),
])
pad7 = body10.newObject("PartDesign::Pad", "Pad006")
pad7.Profile = sketch7
pad7.Length = 5
body11 = doc.addObject("PartDesign::Body", "Body010")

sketch8 = body11.newObject("Sketcher::SketchObject", "Sketch007")
sketch8.AttachmentSupport = (doc.getObject("XZ_Plane010"), [""])
sketch8.MapMode = "FlatFace"
sketch8.AttachmentOffset = App.Placement(V(0, 0, 1.68656), App.Rotation())
sketch8.addGeometry([
    Part.LineSegment(V(54.75, -4.5, 0), V(97.25, -4.5, 0)),
    Part.LineSegment(V(97.25, -4.5, 0), V(97.25, -9.5, 0)),
    Part.LineSegment(V(97.25, -9.5, 0), V(55.81, -9.5, 0)),
    Part.LineSegment(V(55.81, -9.5, 0), V(54.75, -8.44, 0)),
    Part.LineSegment(V(54.75, -8.44, 0), V(54.75, -4.5, 0)),
], False)
sketch8.addConstraint([
    Sketcher.Constraint("Coincident", 0, 2, 1, 1),
    Sketcher.Constraint("Coincident", 1, 2, 2, 1),
    Sketcher.Constraint("Coincident", 2, 2, 3, 1),
    Sketcher.Constraint("Coincident", 3, 2, 4, 1),
    Sketcher.Constraint("Coincident", 4, 2, 0, 1),
    Sketcher.Constraint("Horizontal", 0),
    Sketcher.Constraint("Vertical", 1),
    Sketcher.Constraint("Horizontal", 2),
    Sketcher.Constraint("Vertical", 4),
    Sketcher.Constraint("DistanceY", 1, 2, 1, 1, Q("5 mm")),
    Sketcher.Constraint("Angle", 3, Q("135 deg")),
    Sketcher.Constraint("DistanceX", 0, 1, 0, 2, Q("42.5 mm")),
    Sketcher.Constraint("DistanceX", 2, 2, 2, 1, Q("41.44 mm")),
    Sketcher.Constraint("DistanceY", 0, 2, -1, 1, Q("4.5 mm")),
    Sketcher.Constraint("DistanceX", -1, 1, 0, 2, Q("97.25 mm")),
])
pad8 = body11.newObject("PartDesign::Pad", "Pad007")
pad8.Profile = sketch8
pad8.Length = 5
body12 = doc.addObject("PartDesign::Body", "Body011")

sketch9 = body12.newObject("Sketcher::SketchObject", "Sketch008")
sketch9.AttachmentSupport = (doc.getObject("XZ_Plane011"), [""])
sketch9.MapMode = "FlatFace"
sketch9.AttachmentOffset = App.Placement(V(0, 0, 1.68656), App.Rotation())
sketch9.addGeometry([
    Part.LineSegment(V(50.75, -17.5, 0), V(87.375, -17.5, 0)),
    Part.LineSegment(V(87.375, -17.5, 0), V(87.375, -22.5, 0)),
    Part.LineSegment(V(87.375, -22.5, 0), V(51.805, -22.5, 0)),
    Part.LineSegment(V(51.805, -22.5, 0), V(50.75, -21.445, 0)),
    Part.LineSegment(V(50.75, -21.445, 0), V(50.75, -17.5, 0)),
], False)
sketch9.addConstraint([
    Sketcher.Constraint("Coincident", 0, 2, 1, 1),
    Sketcher.Constraint("Coincident", 1, 2, 2, 1),
    Sketcher.Constraint("Coincident", 2, 2, 3, 1),
    Sketcher.Constraint("Coincident", 3, 2, 4, 1),
    Sketcher.Constraint("Coincident", 4, 2, 0, 1),
    Sketcher.Constraint("Horizontal", 0),
    Sketcher.Constraint("Vertical", 1),
    Sketcher.Constraint("Horizontal", 2),
    Sketcher.Constraint("Vertical", 4),
    Sketcher.Constraint("DistanceY", 1, 2, 1, 1, Q("5 mm")),
    Sketcher.Constraint("Angle", 3, Q("135 deg")),
    Sketcher.Constraint("DistanceX", 2, 2, 2, 1, Q("35.57 mm")),
    Sketcher.Constraint("DistanceY", 0, 2, -1, 1, Q("17.5 mm")),
    Sketcher.Constraint("DistanceX", 0, 1, 0, 2, Q("36.625 mm")),
    Sketcher.Constraint("DistanceX", -1, 1, 3, 2, Q("50.75 mm")),
])
pad9 = body12.newObject("PartDesign::Pad", "Pad008")
pad9.Profile = sketch9
pad9.Length = 5
body9.AllowCompound = True
doc.recompute()

boolean5 = body9.newObject("PartDesign::Boolean", "Boolean004")
boolean5.Type = "Fuse"
boolean5.addObjects([body10])
doc.recompute()

boolean6 = body9.newObject("PartDesign::Boolean", "Boolean005")
boolean6.Type = "Fuse"
boolean6.addObjects([body11])
doc.recompute()

boolean7 = body9.newObject("PartDesign::Boolean", "Boolean006")
boolean7.Type = "Fuse"
boolean7.addObjects([body12])

sketch10 = body9.newObject("Sketcher::SketchObject", "Sketch009")
sketch10.AttachmentSupport = (doc.getObject("XZ_Plane008"), [""])
sketch10.MapMode = "FlatFace"
sketch10.AttachmentOffset = App.Placement(V(0, 0, 6.68656), App.Rotation())
sketch10.addGeometry([
    Part.LineSegment(V(7.971603, -20.539721, 0), V(7.971603, -21.318159, 0)),
    Part.LineSegment(V(7.971603, -21.318159, 0), V(46.009002, -21.318159, 0)),
    Part.LineSegment(V(46.009002, -21.318159, 0), V(46.009002, -20.378417, 0)),
    Part.LineSegment(V(46.009002, -20.378417, 0), V(47.200302, -20.378417, 0)),
    Part.LineSegment(V(47.200302, -20.378417, 0), V(47.200302, -18.780588, 0)),
    Part.LineSegment(V(47.200302, -18.780588, 0), V(46.009002, -18.780588, 0)),
    Part.LineSegment(V(46.009002, -18.780588, 0), V(46.009002, -18.232546, 0)),
    Part.LineSegment(V(46.009002, -18.232546, 0), V(7.971603, -18.232546, 0)),
    Part.LineSegment(V(7.971603, -18.232546, 0), V(7.971603, -18.941892, 0)),
    Part.LineSegment(V(7.971603, -18.941892, 0), V(6.636602, -18.941892, 0)),
    Part.LineSegment(V(6.636602, -18.941892, 0), V(6.636602, -20.539721, 0)),
    Part.LineSegment(V(6.636602, -20.539721, 0), V(7.971603, -20.539721, 0)),
    Part.LineSegment(V(9.194392, -20.539721, 0), V(9.194392, -18.941892, 0)),
    Part.LineSegment(V(9.194392, -18.941892, 0), V(45.092155, -18.941892, 0)),
    Part.LineSegment(V(45.092155, -18.941892, 0), V(45.092155, -20.539721, 0)),
    Part.LineSegment(V(45.092155, -20.539721, 0), V(9.194392, -20.539721, 0)),
    Part.LineSegment(V(53.756117, -21.532035, 0), V(84.707471, -21.532035, 0)),
    Part.LineSegment(V(84.707471, -21.532035, 0), V(84.707471, -20.753597, 0)),
    Part.LineSegment(V(84.707471, -20.753597, 0), V(85.898772, -20.753597, 0)),
    Part.LineSegment(V(85.898772, -20.753597, 0), V(85.898772, -19.155769, 0)),
    Part.LineSegment(V(85.898772, -19.155769, 0), V(84.707471, -19.155769, 0)),
    Part.LineSegment(V(84.707471, -19.155769, 0), V(84.707471, -18.446422, 0)),
    Part.LineSegment(V(84.707471, -18.446422, 0), V(53.756117, -18.446422, 0)),
    Part.LineSegment(V(53.756117, -18.446422, 0), V(53.756117, -19.155769, 0)),
    Part.LineSegment(V(53.756117, -19.155769, 0), V(52.421116, -19.155769, 0)),
    Part.LineSegment(V(52.421116, -19.155769, 0), V(52.421116, -20.753597, 0)),
    Part.LineSegment(V(52.421116, -20.753597, 0), V(53.756117, -20.753597, 0)),
    Part.LineSegment(V(53.756117, -20.753597, 0), V(53.756117, -21.532035, 0)),
    Part.LineSegment(V(83.790625, -20.753597, 0), V(54.978906, -20.753597, 0)),
    Part.LineSegment(V(54.978906, -20.753597, 0), V(54.978906, -19.155769, 0)),
    Part.LineSegment(V(54.978906, -19.155769, 0), V(83.790625, -19.155769, 0)),
    Part.LineSegment(V(83.790625, -19.155769, 0), V(83.790625, -20.753597, 0)),
    Part.LineSegment(V(57.040908, -7.599032, 0), V(57.040908, -8.37747, 0)),
    Part.LineSegment(V(57.040908, -8.37747, 0), V(95.078307, -8.37747, 0)),
    Part.LineSegment(V(95.078307, -8.37747, 0), V(95.078307, -7.437728, 0)),
    Part.LineSegment(V(95.078307, -7.437728, 0), V(96.269607, -7.437728, 0)),
    Part.LineSegment(V(96.269607, -7.437728, 0), V(96.269607, -5.839899, 0)),
    Part.LineSegment(V(96.269607, -5.839899, 0), V(95.078307, -5.839899, 0)),
    Part.LineSegment(V(95.078307, -5.839899, 0), V(95.078307, -5.291857, 0)),
    Part.LineSegment(V(95.078307, -5.291857, 0), V(57.040908, -5.291857, 0)),
    Part.LineSegment(V(57.040908, -5.291857, 0), V(57.040908, -6.001203, 0)),
    Part.LineSegment(V(57.040908, -6.001203, 0), V(55.705907, -6.001203, 0)),
    Part.LineSegment(V(55.705907, -6.001203, 0), V(55.705907, -7.599032, 0)),
    Part.LineSegment(V(55.705907, -7.599032, 0), V(57.040908, -7.599032, 0)),
    Part.LineSegment(V(58.263697, -7.599032, 0), V(58.263697, -6.001203, 0)),
    Part.LineSegment(V(58.263697, -6.001203, 0), V(94.16146, -6.001203, 0)),
    Part.LineSegment(V(94.16146, -6.001203, 0), V(94.16146, -7.599032, 0)),
    Part.LineSegment(V(94.16146, -7.599032, 0), V(58.263697, -7.599032, 0)),
    Part.LineSegment(V(5.524337, -6.147907, 0), V(4.189336, -6.147907, 0)),
    Part.LineSegment(V(4.189336, -6.147907, 0), V(4.189336, -7.745735, 0)),
    Part.LineSegment(V(4.189336, -7.745735, 0), V(5.524337, -7.745735, 0)),
    Part.LineSegment(V(5.524337, -7.745735, 0), V(5.524337, -8.524174, 0)),
    Part.LineSegment(V(5.524337, -8.524174, 0), V(36.475691, -8.524174, 0)),
    Part.LineSegment(V(36.475691, -8.524174, 0), V(36.475691, -7.745735, 0)),
    Part.LineSegment(V(36.475691, -7.745735, 0), V(37.666992, -7.745735, 0)),
    Part.LineSegment(V(37.666992, -7.745735, 0), V(37.666992, -6.147907, 0)),
    Part.LineSegment(V(37.666992, -6.147907, 0), V(36.475691, -6.147907, 0)),
    Part.LineSegment(V(36.475691, -6.147907, 0), V(36.475691, -5.43856, 0)),
    Part.LineSegment(V(36.475691, -5.43856, 0), V(5.524337, -5.43856, 0)),
    Part.LineSegment(V(5.524337, -5.43856, 0), V(5.524337, -6.147907, 0)),
    Part.LineSegment(V(6.747126, -7.745735, 0), V(6.747126, -6.147907, 0)),
    Part.LineSegment(V(6.747126, -6.147907, 0), V(35.558845, -6.147907, 0)),
    Part.LineSegment(V(35.558845, -6.147907, 0), V(35.558845, -7.745735, 0)),
    Part.LineSegment(V(35.558845, -7.745735, 0), V(6.747126, -7.745735, 0)),
], False)
sketch10.addConstraint([
    Sketcher.Constraint("Coincident", 0, 2, 1, 1),
    Sketcher.Constraint("Coincident", 1, 2, 2, 1),
    Sketcher.Constraint("Coincident", 2, 2, 3, 1),
    Sketcher.Constraint("Coincident", 3, 2, 4, 1),
    Sketcher.Constraint("Coincident", 4, 2, 5, 1),
    Sketcher.Constraint("Coincident", 5, 2, 6, 1),
    Sketcher.Constraint("Coincident", 6, 2, 7, 1),
    Sketcher.Constraint("Coincident", 7, 2, 8, 1),
    Sketcher.Constraint("Coincident", 8, 2, 9, 1),
    Sketcher.Constraint("Coincident", 9, 2, 10, 1),
    Sketcher.Constraint("Coincident", 10, 2, 11, 1),
    Sketcher.Constraint("Coincident", 11, 2, 0, 1),
    Sketcher.Constraint("Coincident", 12, 2, 13, 1),
    Sketcher.Constraint("Coincident", 13, 2, 14, 1),
    Sketcher.Constraint("Coincident", 14, 2, 15, 1),
    Sketcher.Constraint("Coincident", 15, 2, 12, 1),
    Sketcher.Constraint("Coincident", 16, 2, 17, 1),
    Sketcher.Constraint("Coincident", 17, 2, 18, 1),
    Sketcher.Constraint("Coincident", 18, 2, 19, 1),
    Sketcher.Constraint("Coincident", 19, 2, 20, 1),
    Sketcher.Constraint("Coincident", 20, 2, 21, 1),
    Sketcher.Constraint("Coincident", 21, 2, 22, 1),
    Sketcher.Constraint("Coincident", 22, 2, 23, 1),
    Sketcher.Constraint("Coincident", 23, 2, 24, 1),
    Sketcher.Constraint("Coincident", 24, 2, 25, 1),
    Sketcher.Constraint("Coincident", 25, 2, 26, 1),
    Sketcher.Constraint("Coincident", 26, 2, 27, 1),
    Sketcher.Constraint("Coincident", 27, 2, 16, 1),
    Sketcher.Constraint("Coincident", 28, 2, 29, 1),
    Sketcher.Constraint("Coincident", 29, 2, 30, 1),
    Sketcher.Constraint("Coincident", 30, 2, 31, 1),
    Sketcher.Constraint("Coincident", 31, 2, 28, 1),
    Sketcher.Constraint("Coincident", 32, 2, 33, 1),
    Sketcher.Constraint("Coincident", 33, 2, 34, 1),
    Sketcher.Constraint("Coincident", 34, 2, 35, 1),
    Sketcher.Constraint("Coincident", 35, 2, 36, 1),
    Sketcher.Constraint("Coincident", 36, 2, 37, 1),
    Sketcher.Constraint("Coincident", 37, 2, 38, 1),
    Sketcher.Constraint("Coincident", 38, 2, 39, 1),
    Sketcher.Constraint("Coincident", 39, 2, 40, 1),
    Sketcher.Constraint("Coincident", 40, 2, 41, 1),
    Sketcher.Constraint("Coincident", 41, 2, 42, 1),
    Sketcher.Constraint("Coincident", 42, 2, 43, 1),
    Sketcher.Constraint("Coincident", 43, 2, 32, 1),
    Sketcher.Constraint("Coincident", 44, 2, 45, 1),
    Sketcher.Constraint("Coincident", 45, 2, 46, 1),
    Sketcher.Constraint("Coincident", 46, 2, 47, 1),
    Sketcher.Constraint("Coincident", 47, 2, 44, 1),
    Sketcher.Constraint("Coincident", 48, 2, 49, 1),
    Sketcher.Constraint("Coincident", 49, 2, 50, 1),
    Sketcher.Constraint("Coincident", 50, 2, 51, 1),
    Sketcher.Constraint("Coincident", 51, 2, 52, 1),
    Sketcher.Constraint("Coincident", 52, 2, 53, 1),
    Sketcher.Constraint("Coincident", 53, 2, 54, 1),
    Sketcher.Constraint("Coincident", 54, 2, 55, 1),
    Sketcher.Constraint("Coincident", 55, 2, 56, 1),
    Sketcher.Constraint("Coincident", 56, 2, 57, 1),
    Sketcher.Constraint("Coincident", 57, 2, 58, 1),
    Sketcher.Constraint("Coincident", 58, 2, 59, 1),
    Sketcher.Constraint("Coincident", 59, 2, 48, 1),
    Sketcher.Constraint("Coincident", 60, 2, 61, 1),
    Sketcher.Constraint("Coincident", 61, 2, 62, 1),
    Sketcher.Constraint("Coincident", 62, 2, 63, 1),
    Sketcher.Constraint("Coincident", 63, 2, 60, 1),
    Sketcher.Constraint("Vertical", 0),
    Sketcher.Constraint("Horizontal", 1),
    Sketcher.Constraint("Vertical", 2),
    Sketcher.Constraint("Horizontal", 3),
    Sketcher.Constraint("Vertical", 4),
    Sketcher.Constraint("Horizontal", 5),
    Sketcher.Constraint("Vertical", 6),
    Sketcher.Constraint("Horizontal", 7),
    Sketcher.Constraint("Vertical", 8),
    Sketcher.Constraint("Horizontal", 9),
    Sketcher.Constraint("Vertical", 10),
    Sketcher.Constraint("Horizontal", 11),
    Sketcher.Constraint("Vertical", 12),
    Sketcher.Constraint("Horizontal", 13),
    Sketcher.Constraint("Vertical", 14),
    Sketcher.Constraint("Horizontal", 15),
    Sketcher.Constraint("Horizontal", 16),
    Sketcher.Constraint("Vertical", 17),
    Sketcher.Constraint("Horizontal", 18),
    Sketcher.Constraint("Vertical", 19),
    Sketcher.Constraint("Horizontal", 20),
    Sketcher.Constraint("Vertical", 21),
    Sketcher.Constraint("Horizontal", 22),
    Sketcher.Constraint("Vertical", 23),
    Sketcher.Constraint("Horizontal", 24),
    Sketcher.Constraint("Vertical", 25),
    Sketcher.Constraint("Horizontal", 26),
    Sketcher.Constraint("Vertical", 27),
    Sketcher.Constraint("Horizontal", 28),
    Sketcher.Constraint("Vertical", 29),
    Sketcher.Constraint("Horizontal", 30),
    Sketcher.Constraint("Vertical", 31),
    Sketcher.Constraint("Vertical", 32),
    Sketcher.Constraint("Horizontal", 33),
    Sketcher.Constraint("Vertical", 34),
    Sketcher.Constraint("Horizontal", 35),
    Sketcher.Constraint("Vertical", 36),
    Sketcher.Constraint("Horizontal", 37),
    Sketcher.Constraint("Vertical", 38),
    Sketcher.Constraint("Horizontal", 39),
    Sketcher.Constraint("Vertical", 40),
    Sketcher.Constraint("Horizontal", 41),
    Sketcher.Constraint("Vertical", 42),
    Sketcher.Constraint("Horizontal", 43),
    Sketcher.Constraint("Vertical", 44),
    Sketcher.Constraint("Horizontal", 45),
    Sketcher.Constraint("Vertical", 46),
    Sketcher.Constraint("Horizontal", 47),
    Sketcher.Constraint("Horizontal", 48),
    Sketcher.Constraint("Vertical", 49),
    Sketcher.Constraint("Horizontal", 50),
    Sketcher.Constraint("Vertical", 51),
    Sketcher.Constraint("Horizontal", 52),
    Sketcher.Constraint("Vertical", 53),
    Sketcher.Constraint("Horizontal", 54),
    Sketcher.Constraint("Vertical", 55),
    Sketcher.Constraint("Horizontal", 56),
    Sketcher.Constraint("Vertical", 57),
    Sketcher.Constraint("Horizontal", 58),
    Sketcher.Constraint("Vertical", 59),
    Sketcher.Constraint("Vertical", 60),
    Sketcher.Constraint("Horizontal", 61),
    Sketcher.Constraint("Vertical", 62),
    Sketcher.Constraint("Horizontal", 63),
    Sketcher.Constraint("Horizontal", 9, 2, 12, 2),
    Sketcher.Constraint("Horizontal", 11, 2, 14, 2),
    Sketcher.Constraint("Horizontal", 20, 2, 23, 2),
    Sketcher.Constraint("Horizontal", 18, 2, 25, 2),
    Sketcher.Constraint("Horizontal", 26, 2, 28, 2),
    Sketcher.Constraint("Horizontal", 24, 2, 29, 2),
    Sketcher.Constraint("Horizontal", 41, 2, 44, 2),
    Sketcher.Constraint("Horizontal", 43, 2, 46, 2),
    Sketcher.Constraint("Horizontal", 50, 2, 53, 2),
    Sketcher.Constraint("Horizontal", 48, 2, 55, 2),
    Sketcher.Constraint("Horizontal", 59, 2, 60, 2),
    Sketcher.Constraint("Horizontal", 54, 2, 62, 2),
    Sketcher.Constraint("Vertical", 2, 2, 5, 2),
    Sketcher.Constraint("Vertical", 0, 2, 7, 2),
    Sketcher.Constraint("Vertical", 17, 2, 20, 2),
    Sketcher.Constraint("Vertical", 23, 2, 26, 2),
    Sketcher.Constraint("Vertical", 34, 2, 37, 2),
    Sketcher.Constraint("Vertical", 32, 2, 39, 2),
    Sketcher.Constraint("Vertical", 53, 2, 56, 2),
    Sketcher.Constraint("Vertical", 51, 2, 58, 2),
    Sketcher.Constraint("Equal", 5, 18),
    Sketcher.Constraint("Equal", 11, 24),
    Sketcher.Constraint("Equal", 7, 33),
    Sketcher.Constraint("Equal", 20, 35),
    Sketcher.Constraint("Equal", 26, 41),
    Sketcher.Constraint("Equal", 15, 45),
    Sketcher.Constraint("Equal", 43, 48),
    Sketcher.Constraint("Equal", 22, 52),
    Sketcher.Constraint("Equal", 37, 54),
    Sketcher.Constraint("Equal", 30, 61),
    Sketcher.Constraint("Equal", 4, 10),
    Sketcher.Constraint("Equal", 0, 17),
    Sketcher.Constraint("Equal", 14, 19),
    Sketcher.Constraint("Equal", 8, 21),
    Sketcher.Constraint("Equal", 27, 32),
    Sketcher.Constraint("Equal", 2, 34),
    Sketcher.Constraint("Equal", 31, 36),
    Sketcher.Constraint("Equal", 6, 38),
    Sketcher.Constraint("Equal", 23, 40),
    Sketcher.Constraint("Equal", 46, 49),
    Sketcher.Constraint("Equal", 32, 51),
    Sketcher.Constraint("Equal", 40, 57),
    Sketcher.Constraint("DistanceX", 9, 2, 9, 1, Q("1.335001 mm")),
    Sketcher.Constraint("DistanceX", 1, 1, 1, 2, Q("38.037399 mm")),
    Sketcher.Constraint("DistanceX", 3, 1, 3, 2, Q("1.1913 mm")),
    Sketcher.Constraint("DistanceX", -1, 1, 1, 2, Q("46.009002 mm")),
    Sketcher.Constraint("DistanceX", 28, 2, 28, 1, Q("28.811718 mm")),
    Sketcher.Constraint("DistanceY", 0, 2, 0, 1, Q("0.778438 mm")),
    Sketcher.Constraint("DistanceY", 4, 1, 4, 2, Q("1.597829 mm")),
    Sketcher.Constraint("DistanceY", 36, 2, -1, 1, Q("5.839899 mm")),
    Sketcher.Constraint("DistanceX", 13, 1, 13, 2, Q("35.897763 mm")),
    Sketcher.Constraint("DistanceX", 16, 1, 16, 2, Q("30.951354 mm")),
    Sketcher.Constraint("DistanceY", 2, 1, 2, 2, Q("0.939742 mm")),
    Sketcher.Constraint("DistanceY", 6, 1, 6, 2, Q("0.548042 mm")),
    Sketcher.Constraint("DistanceY", 0, 2, -1, 1, Q("21.318159 mm")),
    Sketcher.Constraint("DistanceX", -1, 1, 16, 2, Q("84.707471 mm")),
    Sketcher.Constraint("DistanceY", 19, 2, -1, 1, Q("19.155769 mm")),
    Sketcher.Constraint("DistanceX", -1, 1, 45, 2, Q("94.16146 mm")),
    Sketcher.Constraint("DistanceX", -1, 1, 52, 2, Q("36.475691 mm")),
    Sketcher.Constraint("DistanceY", 57, 2, -1, 1, Q("5.43856 mm")),
    Sketcher.Constraint("DistanceX", -1, 1, 12, 2, Q("9.194392 mm")),
    Sketcher.Constraint("DistanceX", -1, 1, 28, 2, Q("54.978906 mm")),
    Sketcher.Constraint("DistanceX", -1, 1, 32, 2, Q("57.040908 mm")),
    Sketcher.Constraint("DistanceX", -1, 1, 60, 2, Q("6.747126 mm")),
])
pad10 = body9.newObject("PartDesign::Pad", "Pad009")
pad10.Profile = sketch10
pad10.Length = 3.5

doc.recompute()
